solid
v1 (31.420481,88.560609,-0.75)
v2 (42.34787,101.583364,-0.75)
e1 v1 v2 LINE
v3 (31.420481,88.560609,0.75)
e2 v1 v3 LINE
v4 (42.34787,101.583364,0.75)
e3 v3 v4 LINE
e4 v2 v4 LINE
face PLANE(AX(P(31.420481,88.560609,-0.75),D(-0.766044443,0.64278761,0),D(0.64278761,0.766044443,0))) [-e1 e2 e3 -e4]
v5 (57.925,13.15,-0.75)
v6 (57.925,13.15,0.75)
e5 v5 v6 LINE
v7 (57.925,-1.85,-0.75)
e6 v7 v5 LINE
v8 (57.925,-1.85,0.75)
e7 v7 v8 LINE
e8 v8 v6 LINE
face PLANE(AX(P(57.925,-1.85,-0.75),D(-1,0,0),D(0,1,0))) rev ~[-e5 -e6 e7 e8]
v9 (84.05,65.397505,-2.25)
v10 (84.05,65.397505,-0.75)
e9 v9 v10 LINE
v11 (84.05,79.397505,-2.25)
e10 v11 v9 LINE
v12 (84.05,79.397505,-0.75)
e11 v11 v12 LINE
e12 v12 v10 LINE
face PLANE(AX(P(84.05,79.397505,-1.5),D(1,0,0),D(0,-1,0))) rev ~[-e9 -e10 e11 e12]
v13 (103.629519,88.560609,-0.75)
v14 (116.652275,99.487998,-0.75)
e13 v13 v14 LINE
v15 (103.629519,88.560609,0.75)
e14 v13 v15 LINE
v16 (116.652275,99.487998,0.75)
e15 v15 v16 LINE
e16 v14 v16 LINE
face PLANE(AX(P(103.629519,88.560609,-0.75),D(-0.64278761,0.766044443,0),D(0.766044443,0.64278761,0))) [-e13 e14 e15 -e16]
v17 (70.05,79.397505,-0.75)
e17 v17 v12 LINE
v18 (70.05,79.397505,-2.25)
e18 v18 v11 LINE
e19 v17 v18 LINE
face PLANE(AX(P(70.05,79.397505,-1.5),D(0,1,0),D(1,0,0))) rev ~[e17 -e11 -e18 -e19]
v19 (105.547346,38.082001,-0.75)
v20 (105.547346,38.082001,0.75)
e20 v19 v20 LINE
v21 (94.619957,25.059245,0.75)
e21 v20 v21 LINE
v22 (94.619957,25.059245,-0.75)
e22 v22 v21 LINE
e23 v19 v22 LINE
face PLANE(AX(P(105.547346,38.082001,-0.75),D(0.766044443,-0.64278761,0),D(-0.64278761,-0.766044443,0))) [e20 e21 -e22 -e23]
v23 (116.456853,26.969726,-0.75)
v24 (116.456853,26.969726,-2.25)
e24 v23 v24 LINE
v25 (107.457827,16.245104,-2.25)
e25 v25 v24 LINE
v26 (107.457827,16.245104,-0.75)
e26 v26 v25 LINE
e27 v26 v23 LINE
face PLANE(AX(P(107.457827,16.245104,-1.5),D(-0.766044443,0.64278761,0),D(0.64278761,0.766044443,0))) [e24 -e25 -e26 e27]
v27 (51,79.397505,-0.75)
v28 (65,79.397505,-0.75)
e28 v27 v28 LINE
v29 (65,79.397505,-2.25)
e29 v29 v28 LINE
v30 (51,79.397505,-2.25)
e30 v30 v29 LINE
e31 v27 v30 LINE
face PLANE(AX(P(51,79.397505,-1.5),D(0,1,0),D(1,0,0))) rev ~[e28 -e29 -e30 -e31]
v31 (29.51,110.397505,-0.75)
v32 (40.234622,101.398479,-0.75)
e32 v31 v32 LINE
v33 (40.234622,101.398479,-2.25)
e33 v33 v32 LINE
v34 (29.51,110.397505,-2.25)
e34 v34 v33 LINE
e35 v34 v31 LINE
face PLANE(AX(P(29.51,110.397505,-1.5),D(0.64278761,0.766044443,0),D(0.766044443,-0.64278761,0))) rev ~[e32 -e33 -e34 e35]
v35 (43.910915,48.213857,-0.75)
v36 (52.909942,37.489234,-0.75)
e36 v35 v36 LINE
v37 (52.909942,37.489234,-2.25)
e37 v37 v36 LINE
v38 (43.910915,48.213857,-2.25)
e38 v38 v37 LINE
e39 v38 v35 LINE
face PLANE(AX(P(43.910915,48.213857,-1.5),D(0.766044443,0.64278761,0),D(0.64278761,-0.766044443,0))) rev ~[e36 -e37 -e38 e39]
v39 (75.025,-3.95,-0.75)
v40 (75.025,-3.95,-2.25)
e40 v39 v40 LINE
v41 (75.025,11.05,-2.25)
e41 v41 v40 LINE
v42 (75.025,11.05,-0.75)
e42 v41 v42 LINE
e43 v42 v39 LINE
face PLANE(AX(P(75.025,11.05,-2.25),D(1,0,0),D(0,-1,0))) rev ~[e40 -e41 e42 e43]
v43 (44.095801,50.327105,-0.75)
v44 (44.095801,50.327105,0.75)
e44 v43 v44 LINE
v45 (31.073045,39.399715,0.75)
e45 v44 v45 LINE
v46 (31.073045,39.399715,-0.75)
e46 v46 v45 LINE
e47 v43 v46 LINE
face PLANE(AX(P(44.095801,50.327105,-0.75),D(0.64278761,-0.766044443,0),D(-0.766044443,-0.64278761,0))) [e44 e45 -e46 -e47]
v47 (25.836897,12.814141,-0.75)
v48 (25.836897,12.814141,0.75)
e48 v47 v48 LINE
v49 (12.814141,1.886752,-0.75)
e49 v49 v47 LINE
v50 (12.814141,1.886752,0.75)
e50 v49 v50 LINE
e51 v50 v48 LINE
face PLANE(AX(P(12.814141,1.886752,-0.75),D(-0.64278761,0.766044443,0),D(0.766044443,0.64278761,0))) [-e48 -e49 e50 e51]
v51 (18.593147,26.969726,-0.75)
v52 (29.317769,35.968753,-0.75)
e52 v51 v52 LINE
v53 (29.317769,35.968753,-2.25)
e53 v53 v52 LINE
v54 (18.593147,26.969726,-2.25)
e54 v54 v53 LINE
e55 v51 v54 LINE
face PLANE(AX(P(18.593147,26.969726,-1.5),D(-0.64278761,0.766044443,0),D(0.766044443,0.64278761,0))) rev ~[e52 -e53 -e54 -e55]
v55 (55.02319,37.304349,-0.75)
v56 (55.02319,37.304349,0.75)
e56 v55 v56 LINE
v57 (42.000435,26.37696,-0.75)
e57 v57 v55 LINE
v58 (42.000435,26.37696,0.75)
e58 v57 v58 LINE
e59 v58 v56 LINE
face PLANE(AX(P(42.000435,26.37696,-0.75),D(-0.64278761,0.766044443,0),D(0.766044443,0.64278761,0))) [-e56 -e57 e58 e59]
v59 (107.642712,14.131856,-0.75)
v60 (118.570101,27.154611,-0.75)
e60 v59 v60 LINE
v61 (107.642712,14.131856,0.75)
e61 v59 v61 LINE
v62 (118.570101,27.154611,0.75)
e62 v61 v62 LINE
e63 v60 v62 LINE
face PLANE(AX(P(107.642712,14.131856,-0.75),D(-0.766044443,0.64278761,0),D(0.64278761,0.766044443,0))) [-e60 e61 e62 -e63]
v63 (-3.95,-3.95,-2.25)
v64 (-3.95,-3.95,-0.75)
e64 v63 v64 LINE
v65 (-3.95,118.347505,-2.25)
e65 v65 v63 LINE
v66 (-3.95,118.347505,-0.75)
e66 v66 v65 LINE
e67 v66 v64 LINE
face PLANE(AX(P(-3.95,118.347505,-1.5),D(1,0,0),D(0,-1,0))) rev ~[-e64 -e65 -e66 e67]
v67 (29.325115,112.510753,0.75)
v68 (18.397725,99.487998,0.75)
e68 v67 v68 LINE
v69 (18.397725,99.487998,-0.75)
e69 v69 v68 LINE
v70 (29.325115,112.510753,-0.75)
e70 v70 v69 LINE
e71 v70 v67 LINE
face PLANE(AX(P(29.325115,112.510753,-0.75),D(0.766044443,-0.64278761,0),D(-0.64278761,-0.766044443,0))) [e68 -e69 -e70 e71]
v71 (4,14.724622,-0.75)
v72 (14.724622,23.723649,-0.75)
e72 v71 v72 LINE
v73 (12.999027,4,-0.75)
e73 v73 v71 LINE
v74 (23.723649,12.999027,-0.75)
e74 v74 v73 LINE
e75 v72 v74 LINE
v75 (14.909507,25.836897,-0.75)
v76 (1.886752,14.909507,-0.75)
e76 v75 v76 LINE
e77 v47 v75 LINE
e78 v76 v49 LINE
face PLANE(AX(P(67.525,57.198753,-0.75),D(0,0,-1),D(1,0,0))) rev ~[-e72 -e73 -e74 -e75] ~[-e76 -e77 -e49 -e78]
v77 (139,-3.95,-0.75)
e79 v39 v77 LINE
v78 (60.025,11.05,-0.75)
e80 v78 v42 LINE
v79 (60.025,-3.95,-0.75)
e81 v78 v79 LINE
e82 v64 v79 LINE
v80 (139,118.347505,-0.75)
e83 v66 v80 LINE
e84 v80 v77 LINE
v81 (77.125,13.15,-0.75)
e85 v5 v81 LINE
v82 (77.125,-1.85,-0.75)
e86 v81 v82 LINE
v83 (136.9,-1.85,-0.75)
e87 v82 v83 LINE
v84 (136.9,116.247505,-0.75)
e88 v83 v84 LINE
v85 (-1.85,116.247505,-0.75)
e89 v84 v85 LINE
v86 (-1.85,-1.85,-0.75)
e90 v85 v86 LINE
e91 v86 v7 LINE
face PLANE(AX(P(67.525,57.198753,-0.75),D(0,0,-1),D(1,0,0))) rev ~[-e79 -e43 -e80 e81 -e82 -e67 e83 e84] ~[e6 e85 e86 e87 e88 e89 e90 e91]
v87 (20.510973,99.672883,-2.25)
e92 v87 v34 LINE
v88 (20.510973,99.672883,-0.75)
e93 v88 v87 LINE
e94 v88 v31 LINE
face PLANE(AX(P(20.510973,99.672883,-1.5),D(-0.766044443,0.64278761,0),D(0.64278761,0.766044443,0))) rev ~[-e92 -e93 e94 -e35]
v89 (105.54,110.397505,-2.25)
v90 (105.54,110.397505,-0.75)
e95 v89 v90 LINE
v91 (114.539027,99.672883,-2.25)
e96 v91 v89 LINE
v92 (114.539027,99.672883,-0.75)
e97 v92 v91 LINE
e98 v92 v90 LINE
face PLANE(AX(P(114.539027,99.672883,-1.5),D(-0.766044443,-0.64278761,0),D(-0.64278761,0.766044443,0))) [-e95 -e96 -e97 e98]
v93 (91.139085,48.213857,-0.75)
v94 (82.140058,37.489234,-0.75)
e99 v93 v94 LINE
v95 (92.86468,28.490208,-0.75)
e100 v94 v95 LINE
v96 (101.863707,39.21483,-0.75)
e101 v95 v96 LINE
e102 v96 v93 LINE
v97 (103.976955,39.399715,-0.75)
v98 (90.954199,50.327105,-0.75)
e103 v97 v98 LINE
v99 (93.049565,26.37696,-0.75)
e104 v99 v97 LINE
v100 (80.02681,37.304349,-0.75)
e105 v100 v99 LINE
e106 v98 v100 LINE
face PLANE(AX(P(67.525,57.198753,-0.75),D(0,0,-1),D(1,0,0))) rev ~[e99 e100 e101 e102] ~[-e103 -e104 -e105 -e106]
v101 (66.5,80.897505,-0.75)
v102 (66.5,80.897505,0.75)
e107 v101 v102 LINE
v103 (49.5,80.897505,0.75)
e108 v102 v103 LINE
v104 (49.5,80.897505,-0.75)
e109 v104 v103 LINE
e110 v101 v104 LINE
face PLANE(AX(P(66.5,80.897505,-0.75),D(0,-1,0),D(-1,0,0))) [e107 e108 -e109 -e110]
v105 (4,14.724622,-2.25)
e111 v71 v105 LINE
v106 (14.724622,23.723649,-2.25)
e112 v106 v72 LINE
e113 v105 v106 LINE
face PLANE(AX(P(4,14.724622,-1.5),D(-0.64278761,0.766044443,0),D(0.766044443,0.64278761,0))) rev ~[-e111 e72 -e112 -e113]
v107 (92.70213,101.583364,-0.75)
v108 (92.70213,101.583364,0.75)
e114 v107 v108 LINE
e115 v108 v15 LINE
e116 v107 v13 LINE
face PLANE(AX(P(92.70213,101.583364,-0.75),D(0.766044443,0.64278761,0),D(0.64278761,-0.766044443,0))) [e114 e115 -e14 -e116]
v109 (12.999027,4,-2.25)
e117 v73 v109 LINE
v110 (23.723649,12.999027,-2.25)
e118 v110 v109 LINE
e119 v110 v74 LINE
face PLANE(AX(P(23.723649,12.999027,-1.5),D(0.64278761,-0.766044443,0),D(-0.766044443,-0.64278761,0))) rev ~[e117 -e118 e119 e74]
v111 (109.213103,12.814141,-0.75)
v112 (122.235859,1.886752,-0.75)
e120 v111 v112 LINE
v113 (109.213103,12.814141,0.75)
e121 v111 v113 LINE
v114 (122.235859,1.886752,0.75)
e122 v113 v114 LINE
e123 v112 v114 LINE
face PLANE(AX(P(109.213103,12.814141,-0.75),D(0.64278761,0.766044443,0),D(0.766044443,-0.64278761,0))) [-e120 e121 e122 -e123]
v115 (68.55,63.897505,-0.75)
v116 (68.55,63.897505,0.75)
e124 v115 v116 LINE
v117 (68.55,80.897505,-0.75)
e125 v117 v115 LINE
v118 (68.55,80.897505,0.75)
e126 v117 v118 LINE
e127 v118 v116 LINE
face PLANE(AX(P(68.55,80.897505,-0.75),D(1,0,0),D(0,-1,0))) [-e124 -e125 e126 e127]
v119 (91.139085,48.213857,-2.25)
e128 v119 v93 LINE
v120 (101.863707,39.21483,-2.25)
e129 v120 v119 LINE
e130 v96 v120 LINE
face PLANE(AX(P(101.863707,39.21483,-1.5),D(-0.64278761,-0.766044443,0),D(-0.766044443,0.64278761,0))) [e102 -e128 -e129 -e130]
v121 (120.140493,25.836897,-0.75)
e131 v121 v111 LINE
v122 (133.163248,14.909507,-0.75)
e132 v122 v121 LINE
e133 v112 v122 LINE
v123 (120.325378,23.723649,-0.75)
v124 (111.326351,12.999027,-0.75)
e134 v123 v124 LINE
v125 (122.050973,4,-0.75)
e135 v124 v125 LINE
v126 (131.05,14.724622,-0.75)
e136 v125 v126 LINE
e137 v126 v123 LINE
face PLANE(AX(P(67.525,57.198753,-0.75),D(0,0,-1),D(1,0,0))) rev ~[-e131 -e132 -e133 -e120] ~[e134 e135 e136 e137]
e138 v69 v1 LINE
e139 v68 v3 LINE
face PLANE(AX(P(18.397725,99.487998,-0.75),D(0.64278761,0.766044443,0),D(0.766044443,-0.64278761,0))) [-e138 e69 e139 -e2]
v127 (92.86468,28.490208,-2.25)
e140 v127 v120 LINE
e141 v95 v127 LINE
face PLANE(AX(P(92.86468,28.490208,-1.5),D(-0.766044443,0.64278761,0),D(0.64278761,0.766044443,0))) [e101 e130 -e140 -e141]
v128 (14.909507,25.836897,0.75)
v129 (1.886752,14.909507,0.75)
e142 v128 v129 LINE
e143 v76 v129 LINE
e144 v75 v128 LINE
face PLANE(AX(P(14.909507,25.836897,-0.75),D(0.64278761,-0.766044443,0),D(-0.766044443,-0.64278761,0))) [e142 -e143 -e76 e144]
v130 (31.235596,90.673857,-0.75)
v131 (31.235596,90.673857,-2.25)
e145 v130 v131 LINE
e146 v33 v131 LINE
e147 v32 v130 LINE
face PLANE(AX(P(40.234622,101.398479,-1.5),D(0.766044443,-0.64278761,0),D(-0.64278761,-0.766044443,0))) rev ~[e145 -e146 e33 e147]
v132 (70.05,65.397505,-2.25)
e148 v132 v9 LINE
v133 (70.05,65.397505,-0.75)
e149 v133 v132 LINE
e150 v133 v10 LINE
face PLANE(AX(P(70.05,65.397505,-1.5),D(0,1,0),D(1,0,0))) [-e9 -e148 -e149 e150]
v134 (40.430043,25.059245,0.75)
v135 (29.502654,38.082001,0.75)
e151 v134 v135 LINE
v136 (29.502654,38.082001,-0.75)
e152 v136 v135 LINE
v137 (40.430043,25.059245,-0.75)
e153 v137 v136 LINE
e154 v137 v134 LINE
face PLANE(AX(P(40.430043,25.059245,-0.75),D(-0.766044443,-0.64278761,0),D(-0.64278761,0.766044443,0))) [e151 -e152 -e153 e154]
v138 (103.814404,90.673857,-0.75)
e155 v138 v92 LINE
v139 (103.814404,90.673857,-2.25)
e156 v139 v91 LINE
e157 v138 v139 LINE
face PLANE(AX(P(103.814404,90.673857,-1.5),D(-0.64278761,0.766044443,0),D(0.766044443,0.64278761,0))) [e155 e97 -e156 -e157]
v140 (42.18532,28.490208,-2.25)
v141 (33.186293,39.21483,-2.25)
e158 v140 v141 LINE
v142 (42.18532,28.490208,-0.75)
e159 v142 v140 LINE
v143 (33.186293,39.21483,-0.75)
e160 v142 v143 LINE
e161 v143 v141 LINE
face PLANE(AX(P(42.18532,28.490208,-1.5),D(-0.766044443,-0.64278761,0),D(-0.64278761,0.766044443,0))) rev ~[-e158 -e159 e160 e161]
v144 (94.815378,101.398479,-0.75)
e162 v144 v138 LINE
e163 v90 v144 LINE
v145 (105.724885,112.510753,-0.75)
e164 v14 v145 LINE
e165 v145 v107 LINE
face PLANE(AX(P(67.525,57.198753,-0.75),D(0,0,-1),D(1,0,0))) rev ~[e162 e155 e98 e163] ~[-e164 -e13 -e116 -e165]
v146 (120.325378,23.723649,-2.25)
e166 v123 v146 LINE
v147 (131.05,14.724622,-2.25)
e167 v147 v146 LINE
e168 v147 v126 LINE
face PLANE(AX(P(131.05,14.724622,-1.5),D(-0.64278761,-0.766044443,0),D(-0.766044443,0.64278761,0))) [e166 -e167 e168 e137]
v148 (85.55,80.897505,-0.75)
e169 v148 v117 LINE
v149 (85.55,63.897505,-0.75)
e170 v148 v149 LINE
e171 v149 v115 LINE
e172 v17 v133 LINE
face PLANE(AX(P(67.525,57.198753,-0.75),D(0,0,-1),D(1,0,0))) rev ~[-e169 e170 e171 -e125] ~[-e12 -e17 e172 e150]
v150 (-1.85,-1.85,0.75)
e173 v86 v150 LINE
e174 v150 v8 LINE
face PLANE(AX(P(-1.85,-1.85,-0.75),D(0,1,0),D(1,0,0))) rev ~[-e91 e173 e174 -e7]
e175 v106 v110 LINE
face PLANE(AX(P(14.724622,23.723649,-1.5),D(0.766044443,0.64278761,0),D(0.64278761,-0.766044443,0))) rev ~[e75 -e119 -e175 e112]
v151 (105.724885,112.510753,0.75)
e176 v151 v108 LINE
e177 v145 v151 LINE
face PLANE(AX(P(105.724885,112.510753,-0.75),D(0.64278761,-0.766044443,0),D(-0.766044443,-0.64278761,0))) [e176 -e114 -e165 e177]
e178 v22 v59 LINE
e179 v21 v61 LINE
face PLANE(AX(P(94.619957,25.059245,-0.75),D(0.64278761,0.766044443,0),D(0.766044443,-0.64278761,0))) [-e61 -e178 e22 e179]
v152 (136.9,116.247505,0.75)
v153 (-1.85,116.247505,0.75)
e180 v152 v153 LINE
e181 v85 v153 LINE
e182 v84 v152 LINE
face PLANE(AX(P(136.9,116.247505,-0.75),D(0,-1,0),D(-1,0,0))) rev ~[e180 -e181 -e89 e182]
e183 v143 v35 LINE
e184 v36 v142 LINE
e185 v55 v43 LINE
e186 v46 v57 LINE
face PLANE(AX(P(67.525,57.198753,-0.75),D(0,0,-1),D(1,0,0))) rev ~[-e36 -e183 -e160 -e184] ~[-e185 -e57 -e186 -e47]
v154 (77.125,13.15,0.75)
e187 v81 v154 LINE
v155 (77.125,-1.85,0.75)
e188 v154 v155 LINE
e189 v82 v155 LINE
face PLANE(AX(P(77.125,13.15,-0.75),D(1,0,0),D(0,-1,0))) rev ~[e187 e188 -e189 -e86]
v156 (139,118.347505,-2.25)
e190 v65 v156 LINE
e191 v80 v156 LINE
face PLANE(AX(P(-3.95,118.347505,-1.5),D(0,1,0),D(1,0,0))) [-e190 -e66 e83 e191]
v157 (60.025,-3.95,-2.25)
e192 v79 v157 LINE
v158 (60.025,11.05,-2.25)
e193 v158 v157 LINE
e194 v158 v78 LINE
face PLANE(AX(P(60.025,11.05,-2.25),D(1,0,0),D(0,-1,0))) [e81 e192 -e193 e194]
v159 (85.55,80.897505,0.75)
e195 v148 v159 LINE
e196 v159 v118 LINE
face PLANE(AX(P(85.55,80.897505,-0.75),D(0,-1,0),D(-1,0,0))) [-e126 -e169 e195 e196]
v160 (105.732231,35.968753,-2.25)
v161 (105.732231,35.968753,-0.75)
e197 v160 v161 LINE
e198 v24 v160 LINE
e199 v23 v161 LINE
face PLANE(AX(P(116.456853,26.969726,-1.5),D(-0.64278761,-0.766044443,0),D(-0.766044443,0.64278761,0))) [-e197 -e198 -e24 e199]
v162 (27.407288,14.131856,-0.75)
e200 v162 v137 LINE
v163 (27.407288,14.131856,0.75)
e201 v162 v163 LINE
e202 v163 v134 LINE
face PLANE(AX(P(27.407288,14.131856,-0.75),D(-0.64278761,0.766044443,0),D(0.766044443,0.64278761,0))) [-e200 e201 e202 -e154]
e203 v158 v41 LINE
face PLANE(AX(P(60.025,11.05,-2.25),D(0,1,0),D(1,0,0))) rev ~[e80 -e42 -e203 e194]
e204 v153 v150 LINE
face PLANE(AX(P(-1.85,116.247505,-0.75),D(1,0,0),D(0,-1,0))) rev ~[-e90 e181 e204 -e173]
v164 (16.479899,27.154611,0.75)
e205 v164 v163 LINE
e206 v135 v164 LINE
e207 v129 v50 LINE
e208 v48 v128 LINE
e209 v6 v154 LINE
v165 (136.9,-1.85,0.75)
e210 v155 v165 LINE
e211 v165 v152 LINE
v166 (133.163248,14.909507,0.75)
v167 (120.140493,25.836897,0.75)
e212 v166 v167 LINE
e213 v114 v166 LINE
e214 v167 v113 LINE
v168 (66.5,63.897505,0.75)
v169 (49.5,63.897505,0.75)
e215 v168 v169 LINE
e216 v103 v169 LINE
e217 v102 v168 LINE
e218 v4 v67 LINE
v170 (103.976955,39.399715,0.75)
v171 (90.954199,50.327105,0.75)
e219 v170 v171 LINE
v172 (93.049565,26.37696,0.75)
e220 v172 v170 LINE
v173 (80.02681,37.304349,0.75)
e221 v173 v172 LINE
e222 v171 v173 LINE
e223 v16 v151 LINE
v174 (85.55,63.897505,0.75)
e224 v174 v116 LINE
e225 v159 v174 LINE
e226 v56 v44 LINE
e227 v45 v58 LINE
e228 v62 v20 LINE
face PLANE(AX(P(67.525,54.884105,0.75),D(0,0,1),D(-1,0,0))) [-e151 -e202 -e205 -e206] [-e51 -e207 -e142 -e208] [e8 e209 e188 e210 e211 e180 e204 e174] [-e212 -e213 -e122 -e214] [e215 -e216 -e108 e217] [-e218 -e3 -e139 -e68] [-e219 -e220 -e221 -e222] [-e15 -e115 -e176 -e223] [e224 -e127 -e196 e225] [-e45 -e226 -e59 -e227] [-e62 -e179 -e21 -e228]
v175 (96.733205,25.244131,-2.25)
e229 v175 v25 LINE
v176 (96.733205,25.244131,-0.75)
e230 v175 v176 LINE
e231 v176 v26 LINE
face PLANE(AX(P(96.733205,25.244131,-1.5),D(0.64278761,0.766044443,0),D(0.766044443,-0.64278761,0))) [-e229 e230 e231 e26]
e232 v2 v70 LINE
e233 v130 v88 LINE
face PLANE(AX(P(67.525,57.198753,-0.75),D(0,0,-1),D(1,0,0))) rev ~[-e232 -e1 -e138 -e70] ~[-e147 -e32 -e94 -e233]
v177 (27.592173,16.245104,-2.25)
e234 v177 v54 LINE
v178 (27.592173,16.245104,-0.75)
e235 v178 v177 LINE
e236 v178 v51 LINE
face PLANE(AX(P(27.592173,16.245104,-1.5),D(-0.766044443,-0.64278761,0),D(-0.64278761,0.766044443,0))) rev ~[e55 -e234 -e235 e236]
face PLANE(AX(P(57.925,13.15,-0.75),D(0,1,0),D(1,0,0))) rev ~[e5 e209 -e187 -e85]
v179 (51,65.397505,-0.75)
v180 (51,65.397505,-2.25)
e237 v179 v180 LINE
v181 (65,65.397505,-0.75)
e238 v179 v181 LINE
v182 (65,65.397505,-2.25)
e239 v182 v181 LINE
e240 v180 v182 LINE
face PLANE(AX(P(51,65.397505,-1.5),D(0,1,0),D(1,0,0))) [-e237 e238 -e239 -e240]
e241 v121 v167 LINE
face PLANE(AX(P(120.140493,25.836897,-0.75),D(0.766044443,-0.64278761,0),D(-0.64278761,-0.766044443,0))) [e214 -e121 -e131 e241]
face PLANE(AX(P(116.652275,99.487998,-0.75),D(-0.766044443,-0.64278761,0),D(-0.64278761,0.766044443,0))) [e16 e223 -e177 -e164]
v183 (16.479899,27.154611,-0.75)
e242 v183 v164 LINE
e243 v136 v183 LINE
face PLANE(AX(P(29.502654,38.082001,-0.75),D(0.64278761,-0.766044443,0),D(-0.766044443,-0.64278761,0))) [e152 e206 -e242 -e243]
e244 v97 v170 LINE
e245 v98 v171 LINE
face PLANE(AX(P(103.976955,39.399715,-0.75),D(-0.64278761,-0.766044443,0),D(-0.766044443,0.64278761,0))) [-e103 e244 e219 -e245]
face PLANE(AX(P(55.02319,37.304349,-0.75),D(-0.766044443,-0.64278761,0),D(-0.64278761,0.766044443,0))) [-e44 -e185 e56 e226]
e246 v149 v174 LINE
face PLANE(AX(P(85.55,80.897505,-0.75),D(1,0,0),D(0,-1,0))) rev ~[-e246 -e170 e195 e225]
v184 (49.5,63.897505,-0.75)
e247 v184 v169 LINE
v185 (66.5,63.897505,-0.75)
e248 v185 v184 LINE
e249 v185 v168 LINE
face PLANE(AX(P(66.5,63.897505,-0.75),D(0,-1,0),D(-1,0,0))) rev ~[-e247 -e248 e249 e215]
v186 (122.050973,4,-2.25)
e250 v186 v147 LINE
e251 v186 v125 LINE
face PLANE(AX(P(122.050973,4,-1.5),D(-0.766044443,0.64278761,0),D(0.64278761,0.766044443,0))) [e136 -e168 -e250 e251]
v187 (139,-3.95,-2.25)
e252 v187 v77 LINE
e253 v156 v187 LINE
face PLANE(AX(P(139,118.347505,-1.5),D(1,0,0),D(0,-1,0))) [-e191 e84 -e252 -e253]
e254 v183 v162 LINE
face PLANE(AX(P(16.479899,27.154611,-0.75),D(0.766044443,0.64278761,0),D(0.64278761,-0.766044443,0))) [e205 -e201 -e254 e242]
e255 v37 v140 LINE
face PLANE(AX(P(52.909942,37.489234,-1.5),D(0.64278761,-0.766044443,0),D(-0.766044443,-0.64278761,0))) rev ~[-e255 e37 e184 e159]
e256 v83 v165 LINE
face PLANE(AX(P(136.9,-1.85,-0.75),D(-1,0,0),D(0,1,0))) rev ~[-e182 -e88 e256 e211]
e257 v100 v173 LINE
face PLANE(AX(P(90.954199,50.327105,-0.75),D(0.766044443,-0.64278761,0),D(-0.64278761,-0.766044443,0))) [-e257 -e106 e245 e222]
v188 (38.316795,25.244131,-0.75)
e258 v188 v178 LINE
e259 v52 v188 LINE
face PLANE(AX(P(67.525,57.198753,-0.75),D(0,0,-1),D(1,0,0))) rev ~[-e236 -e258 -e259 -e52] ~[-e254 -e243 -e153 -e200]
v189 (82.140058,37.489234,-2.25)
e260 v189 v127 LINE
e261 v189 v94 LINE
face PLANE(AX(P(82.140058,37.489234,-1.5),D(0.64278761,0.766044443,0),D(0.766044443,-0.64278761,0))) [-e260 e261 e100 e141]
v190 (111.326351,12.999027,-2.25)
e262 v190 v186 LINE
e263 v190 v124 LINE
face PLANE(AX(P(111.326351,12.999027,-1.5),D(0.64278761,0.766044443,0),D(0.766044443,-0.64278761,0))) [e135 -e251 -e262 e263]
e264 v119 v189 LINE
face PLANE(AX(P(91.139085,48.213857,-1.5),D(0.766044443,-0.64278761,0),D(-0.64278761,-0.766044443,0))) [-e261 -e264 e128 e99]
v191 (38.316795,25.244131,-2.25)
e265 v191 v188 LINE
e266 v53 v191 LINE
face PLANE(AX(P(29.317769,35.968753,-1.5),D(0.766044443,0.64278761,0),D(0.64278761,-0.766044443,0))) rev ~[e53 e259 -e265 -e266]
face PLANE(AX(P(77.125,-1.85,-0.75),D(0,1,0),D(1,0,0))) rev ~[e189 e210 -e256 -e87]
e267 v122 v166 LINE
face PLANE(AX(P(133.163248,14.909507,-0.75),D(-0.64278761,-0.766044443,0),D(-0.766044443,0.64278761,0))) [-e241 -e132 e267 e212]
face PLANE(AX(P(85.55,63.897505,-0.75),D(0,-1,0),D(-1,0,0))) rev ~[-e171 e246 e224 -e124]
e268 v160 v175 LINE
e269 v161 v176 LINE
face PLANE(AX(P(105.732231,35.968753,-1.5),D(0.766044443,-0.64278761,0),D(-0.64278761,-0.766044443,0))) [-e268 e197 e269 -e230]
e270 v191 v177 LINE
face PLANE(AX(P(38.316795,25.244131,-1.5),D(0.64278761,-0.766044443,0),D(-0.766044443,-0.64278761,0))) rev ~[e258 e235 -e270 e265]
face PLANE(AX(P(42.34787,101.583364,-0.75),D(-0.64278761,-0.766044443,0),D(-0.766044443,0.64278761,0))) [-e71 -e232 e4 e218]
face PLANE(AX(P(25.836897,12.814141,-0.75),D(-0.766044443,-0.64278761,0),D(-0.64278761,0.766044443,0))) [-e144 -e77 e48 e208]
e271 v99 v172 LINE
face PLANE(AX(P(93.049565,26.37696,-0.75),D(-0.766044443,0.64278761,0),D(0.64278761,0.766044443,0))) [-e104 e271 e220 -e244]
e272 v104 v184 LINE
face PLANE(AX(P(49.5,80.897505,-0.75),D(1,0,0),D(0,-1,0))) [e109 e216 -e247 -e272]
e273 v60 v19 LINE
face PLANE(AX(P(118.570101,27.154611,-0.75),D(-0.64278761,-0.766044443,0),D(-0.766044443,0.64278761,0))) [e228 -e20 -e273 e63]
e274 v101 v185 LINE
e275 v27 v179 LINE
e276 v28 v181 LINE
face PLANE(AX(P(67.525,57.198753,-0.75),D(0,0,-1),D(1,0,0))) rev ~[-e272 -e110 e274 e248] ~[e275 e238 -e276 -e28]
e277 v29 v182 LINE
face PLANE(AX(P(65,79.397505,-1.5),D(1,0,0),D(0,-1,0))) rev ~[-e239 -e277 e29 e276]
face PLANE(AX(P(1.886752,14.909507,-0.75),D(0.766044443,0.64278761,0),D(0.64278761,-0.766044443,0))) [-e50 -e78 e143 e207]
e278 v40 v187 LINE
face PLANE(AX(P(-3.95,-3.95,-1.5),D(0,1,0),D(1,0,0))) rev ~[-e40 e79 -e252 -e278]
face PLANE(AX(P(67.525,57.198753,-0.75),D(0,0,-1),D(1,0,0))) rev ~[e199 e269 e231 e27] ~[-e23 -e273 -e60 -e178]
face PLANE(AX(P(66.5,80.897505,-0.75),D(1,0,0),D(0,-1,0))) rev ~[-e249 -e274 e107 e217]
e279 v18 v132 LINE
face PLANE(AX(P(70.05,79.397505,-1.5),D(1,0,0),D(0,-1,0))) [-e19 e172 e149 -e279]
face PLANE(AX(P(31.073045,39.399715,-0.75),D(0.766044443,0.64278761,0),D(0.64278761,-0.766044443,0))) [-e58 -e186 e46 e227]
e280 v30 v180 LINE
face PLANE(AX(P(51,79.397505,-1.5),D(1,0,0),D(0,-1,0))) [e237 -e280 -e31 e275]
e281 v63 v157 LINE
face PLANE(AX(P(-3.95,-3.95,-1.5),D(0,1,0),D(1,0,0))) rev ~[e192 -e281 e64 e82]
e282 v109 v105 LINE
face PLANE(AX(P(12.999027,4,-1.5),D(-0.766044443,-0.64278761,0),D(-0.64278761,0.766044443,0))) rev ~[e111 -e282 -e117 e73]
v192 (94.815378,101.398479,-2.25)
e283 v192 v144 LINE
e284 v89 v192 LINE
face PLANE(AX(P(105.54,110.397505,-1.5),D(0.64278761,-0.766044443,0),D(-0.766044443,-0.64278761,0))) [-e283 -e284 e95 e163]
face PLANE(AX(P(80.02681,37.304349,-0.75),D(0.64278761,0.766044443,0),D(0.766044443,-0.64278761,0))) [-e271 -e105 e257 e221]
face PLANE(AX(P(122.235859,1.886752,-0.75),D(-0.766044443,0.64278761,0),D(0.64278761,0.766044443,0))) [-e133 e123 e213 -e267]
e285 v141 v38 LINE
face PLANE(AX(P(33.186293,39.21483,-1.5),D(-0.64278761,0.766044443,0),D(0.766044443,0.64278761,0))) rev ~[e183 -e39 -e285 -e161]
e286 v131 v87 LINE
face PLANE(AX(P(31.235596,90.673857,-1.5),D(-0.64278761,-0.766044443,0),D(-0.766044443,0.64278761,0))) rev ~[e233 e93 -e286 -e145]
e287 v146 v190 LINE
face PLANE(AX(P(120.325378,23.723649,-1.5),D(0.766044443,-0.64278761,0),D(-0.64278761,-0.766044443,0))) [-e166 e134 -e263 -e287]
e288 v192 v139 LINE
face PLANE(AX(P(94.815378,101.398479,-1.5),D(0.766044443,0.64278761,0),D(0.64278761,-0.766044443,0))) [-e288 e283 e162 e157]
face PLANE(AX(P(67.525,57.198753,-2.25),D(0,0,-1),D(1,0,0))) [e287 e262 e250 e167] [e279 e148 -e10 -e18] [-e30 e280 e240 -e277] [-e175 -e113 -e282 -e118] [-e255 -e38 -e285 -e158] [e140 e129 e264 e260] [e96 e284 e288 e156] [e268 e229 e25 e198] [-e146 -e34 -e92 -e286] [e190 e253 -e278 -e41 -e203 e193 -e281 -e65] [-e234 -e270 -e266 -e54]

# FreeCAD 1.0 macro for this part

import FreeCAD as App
import Part
import Sketcher
from FreeCAD import Vector
Q = App.Units.Quantity

doc = App.newDocument("Part")
body = doc.addObject("PartDesign::Body", "Body")

# Sketch on XY plane
sketch1 = body.newObject("Sketcher::SketchObject", "Sketch")
sketch1.AttachmentSupport = (doc.getObject("XY_Plane"), [""])
sketch1.MapMode = "FlatFace"
sketch1.addGeometry([
    Part.LineSegment(Vector(-3.95, 118.347505, 0), Vector(-3.95, -3.95, 0)),  # 0
    Part.LineSegment(Vector(-3.95, -3.95, 0), Vector(139, -3.95, 0)),  # 1
    Part.LineSegment(Vector(139, -3.95, 0), Vector(139, 118.347505, 0)),  # 2
    Part.LineSegment(Vector(139, 118.347505, 0), Vector(-3.95, 118.347505, 0)),  # 3
    Part.LineSegment(Vector(29.51, 4, 0), Vector(20.510973, 14.724622, 0)),  # 4
    Part.LineSegment(Vector(20.510973, 14.724622, 0), Vector(31.235596, 23.723649, 0)),  # 5
    Part.LineSegment(Vector(31.235596, 23.723649, 0), Vector(40.234622, 12.999027, 0)),  # 6
    Part.LineSegment(Vector(40.234622, 12.999027, 0), Vector(29.51, 4, 0)),  # 7
    Part.LineSegment(Vector(65, 35, 0), Vector(51, 35, 0)),  # 8
    Part.LineSegment(Vector(51, 35, 0), Vector(51, 49, 0)),  # 9
    Part.LineSegment(Vector(51, 49, 0), Vector(65, 49, 0)),  # 10
    Part.LineSegment(Vector(65, 49, 0), Vector(65, 35, 0)),  # 11
    Part.LineSegment(Vector(94.815378, 12.999027, 0), Vector(103.814404, 23.723649, 0)),  # 12
    Part.LineSegment(Vector(103.814404, 23.723649, 0), Vector(114.539027, 14.724622, 0)),  # 13
    Part.LineSegment(Vector(114.539027, 14.724622, 0), Vector(105.54, 4, 0)),  # 14
    Part.LineSegment(Vector(105.54, 4, 0), Vector(94.815378, 12.999027, 0)),  # 15
    Part.LineSegment(Vector(84.05, 35, 0), Vector(70.05, 35, 0)),  # 16
    Part.LineSegment(Vector(70.05, 35, 0), Vector(70.05, 49, 0)),  # 17
    Part.LineSegment(Vector(70.05, 49, 0), Vector(84.05, 49, 0)),  # 18
    Part.LineSegment(Vector(84.05, 49, 0), Vector(84.05, 35, 0)),  # 19
    Part.LineSegment(Vector(43.910915, 66.183649, 0), Vector(33.186293, 75.182675, 0)),  # 20
    Part.LineSegment(Vector(33.186293, 75.182675, 0), Vector(42.18532, 85.907297, 0)),  # 21
    Part.LineSegment(Vector(42.18532, 85.907297, 0), Vector(52.909942, 76.908271, 0)),  # 22
    Part.LineSegment(Vector(52.909942, 76.908271, 0), Vector(43.910915, 66.183649, 0)),  # 23
    Part.LineSegment(Vector(29.317769, 78.428753, 0), Vector(18.593147, 87.427779, 0)),  # 24
    Part.LineSegment(Vector(18.593147, 87.427779, 0), Vector(27.592173, 98.152401, 0)),  # 25
    Part.LineSegment(Vector(27.592173, 98.152401, 0), Vector(38.316795, 89.153375, 0)),  # 26
    Part.LineSegment(Vector(38.316795, 89.153375, 0), Vector(29.317769, 78.428753, 0)),  # 27
    Part.LineSegment(Vector(14.724622, 90.673857, 0), Vector(4, 99.672883, 0)),  # 28
    Part.LineSegment(Vector(4, 99.672883, 0), Vector(12.999027, 110.397505, 0)),  # 29
    Part.LineSegment(Vector(12.999027, 110.397505, 0), Vector(23.723649, 101.398479, 0)),  # 30
    Part.LineSegment(Vector(23.723649, 101.398479, 0), Vector(14.724622, 90.673857, 0)),  # 31
    Part.LineSegment(Vector(82.140058, 76.908271, 0), Vector(92.86468, 85.907297, 0)),  # 32
    Part.LineSegment(Vector(92.86468, 85.907297, 0), Vector(101.863707, 75.182675, 0)),  # 33
    Part.LineSegment(Vector(101.863707, 75.182675, 0), Vector(91.139085, 66.183649, 0)),  # 34
    Part.LineSegment(Vector(91.139085, 66.183649, 0), Vector(82.140058, 76.908271, 0)),  # 35
    Part.LineSegment(Vector(96.733205, 89.153375, 0), Vector(107.457827, 98.152401, 0)),  # 36
    Part.LineSegment(Vector(107.457827, 98.152401, 0), Vector(116.456853, 87.427779, 0)),  # 37
    Part.LineSegment(Vector(116.456853, 87.427779, 0), Vector(105.732231, 78.428753, 0)),  # 38
    Part.LineSegment(Vector(105.732231, 78.428753, 0), Vector(96.733205, 89.153375, 0)),  # 39
    Part.LineSegment(Vector(131.05, 99.672883, 0), Vector(120.325378, 90.673857, 0)),  # 40
    Part.LineSegment(Vector(120.325378, 90.673857, 0), Vector(111.326351, 101.398479, 0)),  # 41
    Part.LineSegment(Vector(111.326351, 101.398479, 0), Vector(122.050973, 110.397505, 0)),  # 42
    Part.LineSegment(Vector(122.050973, 110.397505, 0), Vector(131.05, 99.672883, 0)),  # 43
], False)
sketch1.addConstraint([
    Sketcher.Constraint("Coincident", 0, 2, 1, 1),
    Sketcher.Constraint("Coincident", 1, 2, 2, 1),
    Sketcher.Constraint("Coincident", 2, 2, 3, 1),
    Sketcher.Constraint("Coincident", 3, 2, 0, 1),
    Sketcher.Constraint("Coincident", 4, 2, 5, 1),
    Sketcher.Constraint("Coincident", 5, 2, 6, 1),
    Sketcher.Constraint("Coincident", 6, 2, 7, 1),
    Sketcher.Constraint("Coincident", 7, 2, 4, 1),
    Sketcher.Constraint("Coincident", 8, 2, 9, 1),
    Sketcher.Constraint("Coincident", 9, 2, 10, 1),
    Sketcher.Constraint("Coincident", 10, 2, 11, 1),
    Sketcher.Constraint("Coincident", 11, 2, 8, 1),
    Sketcher.Constraint("Coincident", 12, 2, 13, 1),
    Sketcher.Constraint("Coincident", 13, 2, 14, 1),
    Sketcher.Constraint("Coincident", 14, 2, 15, 1),
    Sketcher.Constraint("Coincident", 15, 2, 12, 1),
    Sketcher.Constraint("Coincident", 16, 2, 17, 1),
    Sketcher.Constraint("Coincident", 17, 2, 18, 1),
    Sketcher.Constraint("Coincident", 18, 2, 19, 1),
    Sketcher.Constraint("Coincident", 19, 2, 16, 1),
    Sketcher.Constraint("Coincident", 20, 2, 21, 1),
    Sketcher.Constraint("Coincident", 21, 2, 22, 1),
    Sketcher.Constraint("Coincident", 22, 2, 23, 1),
    Sketcher.Constraint("Coincident", 23, 2, 20, 1),
    Sketcher.Constraint("Coincident", 24, 2, 25, 1),
    Sketcher.Constraint("Coincident", 25, 2, 26, 1),
    Sketcher.Constraint("Coincident", 26, 2, 27, 1),
    Sketcher.Constraint("Coincident", 27, 2, 24, 1),
    Sketcher.Constraint("Coincident", 28, 2, 29, 1),
    Sketcher.Constraint("Coincident", 29, 2, 30, 1),
    Sketcher.Constraint("Coincident", 30, 2, 31, 1),
    Sketcher.Constraint("Coincident", 31, 2, 28, 1),
    Sketcher.Constraint("Coincident", 32, 2, 33, 1),
    Sketcher.Constraint("Coincident", 33, 2, 34, 1),
    Sketcher.Constraint("Coincident", 34, 2, 35, 1),
    Sketcher.Constraint("Coincident", 35, 2, 32, 1),
    Sketcher.Constraint("Coincident", 36, 2, 37, 1),
    Sketcher.Constraint("Coincident", 37, 2, 38, 1),
    Sketcher.Constraint("Coincident", 38, 2, 39, 1),
    Sketcher.Constraint("Coincident", 39, 2, 36, 1),
    Sketcher.Constraint("Coincident", 40, 2, 41, 1),
    Sketcher.Constraint("Coincident", 41, 2, 42, 1),
    Sketcher.Constraint("Coincident", 42, 2, 43, 1),
    Sketcher.Constraint("Coincident", 43, 2, 40, 1),
    Sketcher.Constraint("Vertical", 0),
    Sketcher.Constraint("Horizontal", 1),
    Sketcher.Constraint("Vertical", 2),
    Sketcher.Constraint("Horizontal", 3),
    Sketcher.Constraint("Horizontal", 8),
    Sketcher.Constraint("Vertical", 9),
    Sketcher.Constraint("Horizontal", 10),
    Sketcher.Constraint("Vertical", 11),
    Sketcher.Constraint("Horizontal", 16),
    Sketcher.Constraint("Vertical", 17),
    Sketcher.Constraint("Horizontal", 18),
    Sketcher.Constraint("Vertical", 19),
    Sketcher.Constraint("Perpendicular", 4, 5),
    Sketcher.Constraint("Perpendicular", 5, 6),
    Sketcher.Constraint("Perpendicular", 6, 7),
    Sketcher.Constraint("Perpendicular", 12, 13),
    Sketcher.Constraint("Perpendicular", 13, 14),
    Sketcher.Constraint("Perpendicular", 14, 15),
    Sketcher.Constraint("Parallel", 15, 20),
    Sketcher.Constraint("Perpendicular", 20, 21),
    Sketcher.Constraint("Perpendicular", 21, 22),
    Sketcher.Constraint("Perpendicular", 22, 23),
    Sketcher.Constraint("Perpendicular", 23, 24),
    Sketcher.Constraint("Perpendicular", 24, 25),
    Sketcher.Constraint("Perpendicular", 25, 26),
    Sketcher.Constraint("Perpendicular", 26, 27),
    Sketcher.Constraint("Perpendicular", 27, 28),
    Sketcher.Constraint("Perpendicular", 28, 29),
    Sketcher.Constraint("Perpendicular", 29, 30),
    Sketcher.Constraint("Perpendicular", 30, 31),
    Sketcher.Constraint("Parallel", 7, 32),
    Sketcher.Constraint("Perpendicular", 32, 33),
    Sketcher.Constraint("Perpendicular", 33, 34),
    Sketcher.Constraint("Perpendicular", 34, 35),
    Sketcher.Constraint("Perpendicular", 35, 36),
    Sketcher.Constraint("Perpendicular", 36, 37),
    Sketcher.Constraint("Perpendicular", 37, 38),
    Sketcher.Constraint("Perpendicular", 38, 39),
    Sketcher.Constraint("Perpendicular", 39, 40),
    Sketcher.Constraint("Perpendicular", 40, 41),
    Sketcher.Constraint("Perpendicular", 41, 42),
    Sketcher.Constraint("Perpendicular", 42, 43),
    Sketcher.Constraint("Horizontal", 5, 2, 12, 2),
    Sketcher.Constraint("Horizontal", 4, 2, 13, 2),
    Sketcher.Constraint("Horizontal", 7, 2, 14, 2),
    Sketcher.Constraint("Horizontal", 11, 2, 16, 2),
    Sketcher.Constraint("Horizontal", 10, 2, 17, 2),
    Sketcher.Constraint("Horizontal", 21, 2, 32, 2),
    Sketcher.Constraint("Horizontal", 20, 2, 33, 2),
    Sketcher.Constraint("Horizontal", 23, 2, 34, 2),
    Sketcher.Constraint("Horizontal", 25, 2, 36, 2),
    Sketcher.Constraint("Horizontal", 24, 2, 37, 2),
    Sketcher.Constraint("Horizontal", 27, 2, 38, 2),
    Sketcher.Constraint("Horizontal", 31, 2, 40, 2),
    Sketcher.Constraint("Horizontal", 30, 2, 41, 2),
    Sketcher.Constraint("Horizontal", 29, 2, 42, 2),
    Sketcher.Constraint("Equal", 10, 16),
    Sketcher.Constraint("Equal", 18, 9),
    Sketcher.Constraint("Equal", 4, 5),
    Sketcher.Constraint("Equal", 7, 12),
    Sketcher.Constraint("Equal", 15, 20),
    Sketcher.Constraint("Equal", 20, 21),
    Sketcher.Constraint("Equal", 23, 24),
    Sketcher.Constraint("Equal", 24, 25),
    Sketcher.Constraint("Equal", 27, 28),
    Sketcher.Constraint("Equal", 28, 29),
    Sketcher.Constraint("DistanceX", 8, 2, 8, 1, 14.0),
    Sketcher.Constraint("Angle", 4, Q("130 deg")),
    Sketcher.Constraint("Distance", 4, 14.0),
    Sketcher.Constraint("DistanceX", -1, 1, 1, 2, 139.0),
    Sketcher.Constraint("DistanceY", -1, 1, 7, 2, 4.0),
    Sketcher.Constraint("DistanceX", -1, 1, 8, 2, 51.0),
    Sketcher.Constraint("DistanceY", -1, 1, 8, 2, 35.0),
    Sketcher.Constraint("DistanceX", -1, 1, 28, 2, 4.0),
    Sketcher.Constraint("DistanceX", 1, 1, 1, 2, 142.95),
    Sketcher.Constraint("DistanceY", 0, 2, -1, 1, 3.95),
    Sketcher.Constraint("DistanceX", -1, 1, 7, 2, 29.51),
    Sketcher.Constraint("DistanceX", -1, 1, 14, 2, 105.54),
    Sketcher.Constraint("DistanceX", -1, 1, 16, 2, 70.05),
    Sketcher.Constraint("DistanceX", -1, 1, 43, 2, 131.05),
    Sketcher.Constraint("DistanceY", 29, 2, 3, 2, 7.95),
    Sketcher.Constraint("DistanceY", -1, 1, 25, 2, 98.152401),
    Sketcher.Constraint("DistanceY", 20, 2, 26, 2, 13.9707),
    Sketcher.Constraint("DistanceY", 24, 2, 30, 2, 13.9707),
    Sketcher.Constraint("DistanceX", -1, 1, 21, 2, 42.18532),
    Sketcher.Constraint("DistanceX", -1, 1, 27, 2, 29.317769),
    Sketcher.Constraint("DistanceX", -1, 1, 32, 2, 92.86468),
    Sketcher.Constraint("DistanceX", -1, 1, 38, 2, 105.732231),
])
pad1 = body.newObject("PartDesign::Pad", "Pad")
pad1.Profile = sketch1
pad1.Length = 1.5
pad1.Midplane = True

# Sketch on XY plane
sketch2 = body.newObject("Sketcher::SketchObject", "Sketch001")
sketch2.AttachmentSupport = (doc.getObject("XY_Plane"), [""])
sketch2.MapMode = "FlatFace"
sketch2.AttachmentOffset = App.Placement(Vector(0, 0, 0.75), App.Rotation())
sketch2.addGeometry([
    Part.LineSegment(Vector(60.025, 133.347505, 0), Vector(60.025, 103.347505, 0)),
    Part.LineSegment(Vector(60.025, 103.347505, 0), Vector(75.025, 103.347505, 0)),
    Part.LineSegment(Vector(75.025, 103.347505, 0), Vector(75.025, 133.347505, 0)),
    Part.LineSegment(Vector(75.025, 133.347505, 0), Vector(60.025, 133.347505, 0)),
], False)
sketch2.addConstraint([
    Sketcher.Constraint("Coincident", 0, 2, 1, 1),
    Sketcher.Constraint("Coincident", 1, 2, 2, 1),
    Sketcher.Constraint("Coincident", 2, 2, 3, 1),
    Sketcher.Constraint("Coincident", 3, 2, 0, 1),
    Sketcher.Constraint("Vertical", 0),
    Sketcher.Constraint("Horizontal", 1),
    Sketcher.Constraint("Vertical", 2),
    Sketcher.Constraint("Horizontal", 3),
    Sketcher.Constraint("DistanceX", 1, 1, 1, 2, 15.0),
    Sketcher.Constraint("DistanceY", 0, 2, 0, 1, 30.0),
    Sketcher.Constraint("DistanceX", -1, 1, 0, 2, 60.025),
    Sketcher.Constraint("DistanceY", -1, 1, 0, 2, 103.347505),
])
pocket1 = body.newObject("PartDesign::Pocket", "Pocket")
pocket1.Profile = sketch2
pocket1.Type = "ThroughAll"

# Sketch on XY plane
sketch3 = body.newObject("Sketcher::SketchObject", "Sketch002")
sketch3.AttachmentSupport = (doc.getObject("XY_Plane"), [""])
sketch3.MapMode = "FlatFace"
sketch3.AttachmentOffset = App.Placement(Vector(0, 0, -0.75), App.Rotation())
sketch3.addGeometry([
    Part.LineSegment(Vector(57.925, 101.247505, 0), Vector(77.125, 101.247505, 0)),  # 0
    Part.LineSegment(Vector(77.125, 101.247505, 0), Vector(77.125, 116.247505, 0)),  # 1
    Part.LineSegment(Vector(77.125, 116.247505, 0), Vector(136.9, 116.247505, 0)),  # 2
    Part.LineSegment(Vector(136.9, 116.247505, 0), Vector(136.9, -1.85, 0)),  # 3
    Part.LineSegment(Vector(136.9, -1.85, 0), Vector(-1.85, -1.85, 0)),  # 4
    Part.LineSegment(Vector(-1.85, -1.85, 0), Vector(-1.85, 116.247505, 0)),  # 5
    Part.LineSegment(Vector(-1.85, 116.247505, 0), Vector(57.925, 116.247505, 0)),  # 6
    Part.LineSegment(Vector(57.925, 116.247505, 0), Vector(57.925, 101.247505, 0)),  # 7
    Part.LineSegment(Vector(92.70213, 12.814141, 0), Vector(105.724885, 1.886752, 0)),  # 8
    Part.LineSegment(Vector(105.724885, 1.886752, 0), Vector(116.652275, 14.909507, 0)),  # 9
    Part.LineSegment(Vector(116.652275, 14.909507, 0), Vector(103.629519, 25.836897, 0)),  # 10
    Part.LineSegment(Vector(103.629519, 25.836897, 0), Vector(92.70213, 12.814141, 0)),  # 11
    Part.LineSegment(Vector(68.55, 33.5, 0), Vector(85.55, 33.5, 0)),  # 12
    Part.LineSegment(Vector(85.55, 33.5, 0), Vector(85.55, 50.5, 0)),  # 13
    Part.LineSegment(Vector(85.55, 50.5, 0), Vector(68.55, 50.5, 0)),  # 14
    Part.LineSegment(Vector(68.55, 50.5, 0), Vector(68.55, 33.5, 0)),  # 15
    Part.LineSegment(Vector(18.397725, 14.909507, 0), Vector(29.325115, 1.886752, 0)),  # 16
    Part.LineSegment(Vector(29.325115, 1.886752, 0), Vector(42.34787, 12.814141, 0)),  # 17
    Part.LineSegment(Vector(42.34787, 12.814141, 0), Vector(31.420481, 25.836897, 0)),  # 18
    Part.LineSegment(Vector(31.420481, 25.836897, 0), Vector(18.397725, 14.909507, 0)),  # 19
    Part.LineSegment(Vector(49.5, 33.5, 0), Vector(66.5, 33.5, 0)),  # 20
    Part.LineSegment(Vector(66.5, 33.5, 0), Vector(66.5, 50.5, 0)),  # 21
    Part.LineSegment(Vector(66.5, 50.5, 0), Vector(49.5, 50.5, 0)),  # 22
    Part.LineSegment(Vector(49.5, 50.5, 0), Vector(49.5, 33.5, 0)),  # 23
    Part.LineSegment(Vector(80.02681, 77.093156, 0), Vector(90.954199, 64.070401, 0)),  # 24
    Part.LineSegment(Vector(90.954199, 64.070401, 0), Vector(103.976955, 74.99779, 0)),  # 25
    Part.LineSegment(Vector(103.976955, 74.99779, 0), Vector(93.049565, 88.020546, 0)),  # 26
    Part.LineSegment(Vector(93.049565, 88.020546, 0), Vector(80.02681, 77.093156, 0)),  # 27
    Part.LineSegment(Vector(94.619957, 89.33826, 0), Vector(105.547346, 76.315505, 0)),  # 28
    Part.LineSegment(Vector(105.547346, 76.315505, 0), Vector(118.570101, 87.242894, 0)),  # 29
    Part.LineSegment(Vector(118.570101, 87.242894, 0), Vector(107.642712, 100.26565, 0)),  # 30
    Part.LineSegment(Vector(107.642712, 100.26565, 0), Vector(94.619957, 89.33826, 0)),  # 31
    Part.LineSegment(Vector(109.213103, 101.583364, 0), Vector(120.140493, 88.560609, 0)),  # 32
    Part.LineSegment(Vector(120.140493, 88.560609, 0), Vector(133.163248, 99.487998, 0)),  # 33
    Part.LineSegment(Vector(133.163248, 99.487998, 0), Vector(122.235859, 112.510753, 0)),  # 34
    Part.LineSegment(Vector(122.235859, 112.510753, 0), Vector(109.213103, 101.583364, 0)),  # 35
    Part.LineSegment(Vector(42.000435, 88.020546, 0), Vector(31.073045, 74.99779, 0)),  # 36
    Part.LineSegment(Vector(31.073045, 74.99779, 0), Vector(44.095801, 64.070401, 0)),  # 37
    Part.LineSegment(Vector(44.095801, 64.070401, 0), Vector(55.02319, 77.093156, 0)),  # 38
    Part.LineSegment(Vector(55.02319, 77.093156, 0), Vector(42.000435, 88.020546, 0)),  # 39
    Part.LineSegment(Vector(27.407288, 100.26565, 0), Vector(16.479899, 87.242894, 0)),  # 40
    Part.LineSegment(Vector(16.479899, 87.242894, 0), Vector(29.502654, 76.315505, 0)),  # 41
    Part.LineSegment(Vector(29.502654, 76.315505, 0), Vector(40.430043, 89.33826, 0)),  # 42
    Part.LineSegment(Vector(40.430043, 89.33826, 0), Vector(27.407288, 100.26565, 0)),  # 43
    Part.LineSegment(Vector(12.814141, 112.510753, 0), Vector(1.886752, 99.487998, 0)),  # 44
    Part.LineSegment(Vector(1.886752, 99.487998, 0), Vector(14.909507, 88.560609, 0)),  # 45
    Part.LineSegment(Vector(14.909507, 88.560609, 0), Vector(25.836897, 101.583364, 0)),  # 46
    Part.LineSegment(Vector(25.836897, 101.583364, 0), Vector(12.814141, 112.510753, 0)),  # 47
], False)
sketch3.addConstraint([
    Sketcher.Constraint("Coincident", 0, 2, 1, 1),
    Sketcher.Constraint("Coincident", 1, 2, 2, 1),
    Sketcher.Constraint("Coincident", 2, 2, 3, 1),
    Sketcher.Constraint("Coincident", 3, 2, 4, 1),
    Sketcher.Constraint("Coincident", 4, 2, 5, 1),
    Sketcher.Constraint("Coincident", 5, 2, 6, 1),
    Sketcher.Constraint("Coincident", 6, 2, 7, 1),
    Sketcher.Constraint("Coincident", 7, 2, 0, 1),
    Sketcher.Constraint("Coincident", 8, 2, 9, 1),
    Sketcher.Constraint("Coincident", 9, 2, 10, 1),
    Sketcher.Constraint("Coincident", 10, 2, 11, 1),
    Sketcher.Constraint("Coincident", 11, 2, 8, 1),
    Sketcher.Constraint("Coincident", 12, 2, 13, 1),
    Sketcher.Constraint("Coincident", 13, 2, 14, 1),
    Sketcher.Constraint("Coincident", 14, 2, 15, 1),
    Sketcher.Constraint("Coincident", 15, 2, 12, 1),
    Sketcher.Constraint("Coincident", 16, 2, 17, 1),
    Sketcher.Constraint("Coincident", 17, 2, 18, 1),
    Sketcher.Constraint("Coincident", 18, 2, 19, 1),
    Sketcher.Constraint("Coincident", 19, 2, 16, 1),
    Sketcher.Constraint("Coincident", 20, 2, 21, 1),
    Sketcher.Constraint("Coincident", 21, 2, 22, 1),
    Sketcher.Constraint("Coincident", 22, 2, 23, 1),
    Sketcher.Constraint("Coincident", 23, 2, 20, 1),
    Sketcher.Constraint("Coincident", 24, 2, 25, 1),
    Sketcher.Constraint("Coincident", 25, 2, 26, 1),
    Sketcher.Constraint("Coincident", 26, 2, 27, 1),
    Sketcher.Constraint("Coincident", 27, 2, 24, 1),
    Sketcher.Constraint("Coincident", 28, 2, 29, 1),
    Sketcher.Constraint("Coincident", 29, 2, 30, 1),
    Sketcher.Constraint("Coincident", 30, 2, 31, 1),
    Sketcher.Constraint("Coincident", 31, 2, 28, 1),
    Sketcher.Constraint("Coincident", 32, 2, 33, 1),
    Sketcher.Constraint("Coincident", 33, 2, 34, 1),
    Sketcher.Constraint("Coincident", 34, 2, 35, 1),
    Sketcher.Constraint("Coincident", 35, 2, 32, 1),
    Sketcher.Constraint("Coincident", 36, 2, 37, 1),
    Sketcher.Constraint("Coincident", 37, 2, 38, 1),
    Sketcher.Constraint("Coincident", 38, 2, 39, 1),
    Sketcher.Constraint("Coincident", 39, 2, 36, 1),
    Sketcher.Constraint("Coincident", 40, 2, 41, 1),
    Sketcher.Constraint("Coincident", 41, 2, 42, 1),
    Sketcher.Constraint("Coincident", 42, 2, 43, 1),
    Sketcher.Constraint("Coincident", 43, 2, 40, 1),
    Sketcher.Constraint("Coincident", 44, 2, 45, 1),
    Sketcher.Constraint("Coincident", 45, 2, 46, 1),
    Sketcher.Constraint("Coincident", 46, 2, 47, 1),
    Sketcher.Constraint("Coincident", 47, 2, 44, 1),
    Sketcher.Constraint("Horizontal", 0),
    Sketcher.Constraint("Vertical", 1),
    Sketcher.Constraint("Horizontal", 2),
    Sketcher.Constraint("Vertical", 3),
    Sketcher.Constraint("Horizontal", 4),
    Sketcher.Constraint("Vertical", 5),
    Sketcher.Constraint("Horizontal", 6),
    Sketcher.Constraint("Vertical", 7),
    Sketcher.Constraint("Horizontal", 12),
    Sketcher.Constraint("Vertical", 13),
    Sketcher.Constraint("Horizontal", 14),
    Sketcher.Constraint("Vertical", 15),
    Sketcher.Constraint("Horizontal", 20),
    Sketcher.Constraint("Vertical", 21),
    Sketcher.Constraint("Horizontal", 22),
    Sketcher.Constraint("Vertical", 23),
    Sketcher.Constraint("Perpendicular", 8, 9),
    Sketcher.Constraint("Perpendicular", 9, 10),
    Sketcher.Constraint("Perpendicular", 10, 11),
    Sketcher.Constraint("Perpendicular", 16, 17),
    Sketcher.Constraint("Perpendicular", 17, 18),
    Sketcher.Constraint("Perpendicular", 18, 19),
    Sketcher.Constraint("Perpendicular", 19, 24),
    Sketcher.Constraint("Perpendicular", 24, 25),
    Sketcher.Constraint("Perpendicular", 25, 26),
    Sketcher.Constraint("Perpendicular", 26, 27),
    Sketcher.Constraint("Perpendicular", 27, 28),
    Sketcher.Constraint("Perpendicular", 28, 29),
    Sketcher.Constraint("Perpendicular", 29, 30),
    Sketcher.Constraint("Perpendicular", 30, 31),
    Sketcher.Constraint("Perpendicular", 31, 32),
    Sketcher.Constraint("Perpendicular", 32, 33),
    Sketcher.Constraint("Perpendicular", 33, 34),
    Sketcher.Constraint("Perpendicular", 34, 35),
    Sketcher.Constraint("Parallel", 11, 36),
    Sketcher.Constraint("Perpendicular", 36, 37),
    Sketcher.Constraint("Perpendicular", 37, 38),
    Sketcher.Constraint("Perpendicular", 38, 39),
    Sketcher.Constraint("Perpendicular", 39, 40),
    Sketcher.Constraint("Perpendicular", 40, 41),
    Sketcher.Constraint("Perpendicular", 41, 42),
    Sketcher.Constraint("Perpendicular", 42, 43),
    Sketcher.Constraint("Perpendicular", 43, 44),
    Sketcher.Constraint("Perpendicular", 44, 45),
    Sketcher.Constraint("Perpendicular", 45, 46),
    Sketcher.Constraint("Perpendicular", 46, 47),
    Sketcher.Constraint("Horizontal", 2, 2, 5, 2),
    Sketcher.Constraint("Horizontal", 8, 2, 16, 2),
    Sketcher.Constraint("Horizontal", 11, 2, 17, 2),
    Sketcher.Constraint("Horizontal", 10, 2, 18, 2),
    Sketcher.Constraint("Horizontal", 15, 2, 20, 2),
    Sketcher.Constraint("Horizontal", 14, 2, 21, 2),
    Sketcher.Constraint("Horizontal", 25, 2, 36, 2),
    Sketcher.Constraint("Horizontal", 24, 2, 37, 2),
    Sketcher.Constraint("Horizontal", 27, 2, 38, 2),
    Sketcher.Constraint("Horizontal", 29, 2, 40, 2),
    Sketcher.Constraint("Horizontal", 28, 2, 41, 2),
    Sketcher.Constraint("Horizontal", 31, 2, 42, 2),
    Sketcher.Constraint("Horizontal", 33, 2, 44, 2),
    Sketcher.Constraint("Horizontal", 32, 2, 45, 2),
    Sketcher.Constraint("Horizontal", 35, 2, 46, 2),
    Sketcher.Constraint("Equal", 2, 6),
    Sketcher.Constraint("Equal", 14, 20),
    Sketcher.Constraint("Equal", 22, 13),
    Sketcher.Constraint("Equal", 8, 9),
    Sketcher.Constraint("Equal", 11, 16),
    Sketcher.Constraint("Equal", 19, 24),
    Sketcher.Constraint("Equal", 24, 25),
    Sketcher.Constraint("Equal", 27, 28),
    Sketcher.Constraint("Equal", 28, 29),
    Sketcher.Constraint("Equal", 31, 32),
    Sketcher.Constraint("Equal", 32, 33),
    Sketcher.Constraint("DistanceX", 12, 1, 12, 2, 17.0),
    Sketcher.Constraint("DistanceY", 1, 1, 1, 2, 15.0),
    Sketcher.Constraint("Angle", 8, Q("-40 deg")),
    Sketcher.Constraint("Distance", 8, 17.0),
    Sketcher.Constraint("DistanceX", 0, 1, 0, 2, 19.2),
    Sketcher.Constraint("DistanceX", 4, 2, 4, 1, 138.75),
    Sketcher.Constraint("DistanceX", -1, 1, 2, 2, 136.9),
    Sketcher.Constraint("DistanceY", -1, 1, 12, 2, 33.5),
    Sketcher.Constraint("DistanceX", -1, 1, 20, 2, 66.5),
    Sketcher.Constraint("DistanceY", 3, 2, -1, 1, 1.85),
    Sketcher.Constraint("DistanceX", -1, 1, 12, 2, 85.55),
    Sketcher.Constraint("DistanceX", 31, 2, 25, 2, 9.356998),
    Sketcher.Constraint("DistanceX", 35, 2, 29, 2, 9.356998),
    Sketcher.Constraint("DistanceX", 36, 2, 42, 2, 9.356998),
    Sketcher.Constraint("DistanceX", 40, 2, 46, 2, 9.356998),
    Sketcher.Constraint("DistanceX", -1, 1, 24, 2, 90.954199),
    Sketcher.Constraint("DistanceY", -1, 1, 24, 2, 64.070401),
    Sketcher.Constraint("DistanceX", -1, 1, 37, 2, 44.095801),
    Sketcher.Constraint("DistanceY", 3, 2, 3, 1, 118.097505),
    Sketcher.Constraint("DistanceY", -1, 1, 8, 2, 1.886752),
    Sketcher.Constraint("DistanceX", -1, 1, 10, 2, 103.629519),
    Sketcher.Constraint("DistanceX", -1, 1, 17, 2, 42.34787),
    Sketcher.Constraint("DistanceY", -1, 1, 30, 2, 100.26565),
    Sketcher.Constraint("DistanceY", -1, 1, 32, 2, 88.560609),
])
pad2 = body.newObject("PartDesign::Pad", "Pad001")
pad2.Profile = sketch3
pad2.Length = 1.5
pad2.Reversed = True
body2 = doc.addObject("PartDesign::Body", "Body001")
doc.recompute()

body.Placement = App.Placement(Vector(0, 114.397505, -1.5), App.Rotation(Vector(1, 0, 0), 180))
boolean = body2.newObject("PartDesign::Boolean", "Boolean")
boolean.Type = "Fuse"
boolean.addObjects([body])

doc.recompute()
